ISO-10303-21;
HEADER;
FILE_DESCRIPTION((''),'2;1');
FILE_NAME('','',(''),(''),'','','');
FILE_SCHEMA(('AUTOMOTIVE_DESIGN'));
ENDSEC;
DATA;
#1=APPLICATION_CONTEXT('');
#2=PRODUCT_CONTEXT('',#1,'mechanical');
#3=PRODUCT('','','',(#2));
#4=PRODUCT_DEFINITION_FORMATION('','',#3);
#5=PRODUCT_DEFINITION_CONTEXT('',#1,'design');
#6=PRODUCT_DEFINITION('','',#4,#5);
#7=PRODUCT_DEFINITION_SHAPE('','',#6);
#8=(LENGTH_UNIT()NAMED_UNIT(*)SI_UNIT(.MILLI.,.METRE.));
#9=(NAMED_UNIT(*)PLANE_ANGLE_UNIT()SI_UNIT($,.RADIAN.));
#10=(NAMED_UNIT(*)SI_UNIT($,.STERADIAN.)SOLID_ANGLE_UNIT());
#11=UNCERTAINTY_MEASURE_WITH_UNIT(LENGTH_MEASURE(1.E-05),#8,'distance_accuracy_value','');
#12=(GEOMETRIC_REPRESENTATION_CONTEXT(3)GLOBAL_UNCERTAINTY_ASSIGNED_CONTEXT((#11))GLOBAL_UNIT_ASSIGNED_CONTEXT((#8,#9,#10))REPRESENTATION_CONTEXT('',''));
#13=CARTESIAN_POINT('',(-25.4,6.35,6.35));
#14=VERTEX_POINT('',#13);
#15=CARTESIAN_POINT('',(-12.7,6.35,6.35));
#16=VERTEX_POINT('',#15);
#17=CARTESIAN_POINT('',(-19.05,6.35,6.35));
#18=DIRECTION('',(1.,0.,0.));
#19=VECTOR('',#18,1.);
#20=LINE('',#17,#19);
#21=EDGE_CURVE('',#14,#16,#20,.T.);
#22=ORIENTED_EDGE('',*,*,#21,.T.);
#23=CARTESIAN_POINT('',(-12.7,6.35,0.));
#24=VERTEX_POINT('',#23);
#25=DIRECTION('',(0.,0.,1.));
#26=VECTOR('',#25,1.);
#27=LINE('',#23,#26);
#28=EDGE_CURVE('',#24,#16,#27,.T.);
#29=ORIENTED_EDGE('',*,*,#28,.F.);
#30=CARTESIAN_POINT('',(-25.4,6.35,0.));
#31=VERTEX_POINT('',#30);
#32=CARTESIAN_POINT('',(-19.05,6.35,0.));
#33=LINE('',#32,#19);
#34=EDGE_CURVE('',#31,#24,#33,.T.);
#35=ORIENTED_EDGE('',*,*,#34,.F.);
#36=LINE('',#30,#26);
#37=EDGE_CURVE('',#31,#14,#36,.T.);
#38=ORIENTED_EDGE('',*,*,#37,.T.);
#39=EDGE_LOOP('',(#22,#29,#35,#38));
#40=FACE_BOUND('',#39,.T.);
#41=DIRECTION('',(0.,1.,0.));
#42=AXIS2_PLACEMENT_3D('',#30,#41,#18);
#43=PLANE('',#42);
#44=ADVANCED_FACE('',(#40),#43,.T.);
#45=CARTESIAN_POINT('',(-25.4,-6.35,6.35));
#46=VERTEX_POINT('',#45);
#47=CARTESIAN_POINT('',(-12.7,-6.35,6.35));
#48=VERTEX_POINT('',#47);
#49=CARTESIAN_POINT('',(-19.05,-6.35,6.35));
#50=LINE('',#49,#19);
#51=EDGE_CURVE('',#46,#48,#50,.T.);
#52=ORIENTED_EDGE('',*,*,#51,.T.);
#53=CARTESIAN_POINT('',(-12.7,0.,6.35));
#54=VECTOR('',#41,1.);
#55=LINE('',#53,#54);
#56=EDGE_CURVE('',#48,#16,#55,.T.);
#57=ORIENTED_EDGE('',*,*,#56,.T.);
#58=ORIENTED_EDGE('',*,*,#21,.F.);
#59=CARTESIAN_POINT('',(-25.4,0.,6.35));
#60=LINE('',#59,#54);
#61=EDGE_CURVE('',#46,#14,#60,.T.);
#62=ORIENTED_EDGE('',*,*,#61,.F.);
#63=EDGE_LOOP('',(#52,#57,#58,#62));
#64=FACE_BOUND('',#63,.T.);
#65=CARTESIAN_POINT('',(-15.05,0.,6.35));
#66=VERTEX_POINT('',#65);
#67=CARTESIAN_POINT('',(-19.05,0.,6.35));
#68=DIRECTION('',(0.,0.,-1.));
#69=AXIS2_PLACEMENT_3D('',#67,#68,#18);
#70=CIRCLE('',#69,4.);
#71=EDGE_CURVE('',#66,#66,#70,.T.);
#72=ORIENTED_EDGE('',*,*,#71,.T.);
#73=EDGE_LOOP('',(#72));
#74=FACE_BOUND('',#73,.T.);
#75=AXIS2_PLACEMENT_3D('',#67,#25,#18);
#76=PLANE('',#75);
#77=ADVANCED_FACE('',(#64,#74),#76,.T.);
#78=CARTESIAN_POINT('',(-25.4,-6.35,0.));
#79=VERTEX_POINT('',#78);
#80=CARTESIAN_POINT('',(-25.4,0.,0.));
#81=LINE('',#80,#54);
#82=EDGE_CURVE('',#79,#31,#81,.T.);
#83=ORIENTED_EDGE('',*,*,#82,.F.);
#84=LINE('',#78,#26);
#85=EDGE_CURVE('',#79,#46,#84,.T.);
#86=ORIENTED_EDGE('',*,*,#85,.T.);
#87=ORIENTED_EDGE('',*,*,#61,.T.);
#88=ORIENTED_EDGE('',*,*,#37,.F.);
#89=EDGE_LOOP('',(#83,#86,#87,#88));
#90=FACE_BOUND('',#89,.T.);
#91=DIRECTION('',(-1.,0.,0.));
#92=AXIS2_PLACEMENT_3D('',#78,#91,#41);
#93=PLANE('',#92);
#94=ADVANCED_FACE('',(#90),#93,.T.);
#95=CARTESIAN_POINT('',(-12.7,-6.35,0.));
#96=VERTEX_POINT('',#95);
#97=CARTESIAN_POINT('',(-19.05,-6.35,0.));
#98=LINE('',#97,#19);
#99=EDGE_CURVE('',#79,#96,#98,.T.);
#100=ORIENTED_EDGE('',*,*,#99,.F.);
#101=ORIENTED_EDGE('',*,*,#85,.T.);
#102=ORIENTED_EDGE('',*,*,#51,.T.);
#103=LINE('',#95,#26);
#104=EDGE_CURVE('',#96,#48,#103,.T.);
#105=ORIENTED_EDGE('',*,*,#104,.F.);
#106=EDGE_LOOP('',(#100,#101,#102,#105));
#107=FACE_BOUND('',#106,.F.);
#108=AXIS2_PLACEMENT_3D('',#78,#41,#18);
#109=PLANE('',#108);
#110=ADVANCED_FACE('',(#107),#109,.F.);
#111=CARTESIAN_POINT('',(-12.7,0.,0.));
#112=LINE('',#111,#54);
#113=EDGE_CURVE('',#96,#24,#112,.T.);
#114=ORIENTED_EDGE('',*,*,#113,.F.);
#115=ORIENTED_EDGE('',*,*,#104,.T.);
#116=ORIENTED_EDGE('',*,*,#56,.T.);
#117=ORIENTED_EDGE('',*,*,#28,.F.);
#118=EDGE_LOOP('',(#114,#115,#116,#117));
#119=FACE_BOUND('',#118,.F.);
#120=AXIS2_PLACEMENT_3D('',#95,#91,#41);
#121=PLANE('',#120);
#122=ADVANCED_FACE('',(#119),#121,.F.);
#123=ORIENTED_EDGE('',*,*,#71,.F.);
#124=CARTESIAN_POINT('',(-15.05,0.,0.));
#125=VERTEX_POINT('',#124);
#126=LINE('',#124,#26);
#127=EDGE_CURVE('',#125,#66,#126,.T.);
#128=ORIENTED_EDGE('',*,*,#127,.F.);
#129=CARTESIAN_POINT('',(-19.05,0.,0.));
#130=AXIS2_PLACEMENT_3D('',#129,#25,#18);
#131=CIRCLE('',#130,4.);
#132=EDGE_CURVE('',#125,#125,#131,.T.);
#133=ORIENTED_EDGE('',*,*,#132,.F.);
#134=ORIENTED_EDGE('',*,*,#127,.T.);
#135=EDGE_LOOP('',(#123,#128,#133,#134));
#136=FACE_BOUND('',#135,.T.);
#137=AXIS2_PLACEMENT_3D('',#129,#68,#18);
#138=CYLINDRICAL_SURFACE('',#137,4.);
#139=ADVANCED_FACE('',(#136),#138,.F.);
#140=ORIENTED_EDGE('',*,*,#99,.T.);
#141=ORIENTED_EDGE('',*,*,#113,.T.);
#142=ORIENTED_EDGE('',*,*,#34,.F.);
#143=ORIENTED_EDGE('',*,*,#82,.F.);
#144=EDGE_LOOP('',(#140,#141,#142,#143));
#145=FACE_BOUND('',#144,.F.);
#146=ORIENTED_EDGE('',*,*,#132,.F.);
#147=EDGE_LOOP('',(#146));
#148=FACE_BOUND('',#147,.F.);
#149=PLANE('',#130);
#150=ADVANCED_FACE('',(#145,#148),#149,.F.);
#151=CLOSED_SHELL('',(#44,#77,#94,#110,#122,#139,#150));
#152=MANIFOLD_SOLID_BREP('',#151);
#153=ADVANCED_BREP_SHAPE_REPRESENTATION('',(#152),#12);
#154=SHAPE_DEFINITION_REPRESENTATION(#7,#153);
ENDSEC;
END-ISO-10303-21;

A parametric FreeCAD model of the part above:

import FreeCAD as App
import Part
import Sketcher
from FreeCAD import Vector


def add_polygon(sketch, points):
    """Adds a closed chain of lines whose ends are joined by coincident constraints."""
    first, n = sketch.GeometryCount, len(points)
    for a, b in zip(points, points[1:] + points[:1]):
        sketch.addGeometry(Part.LineSegment(App.Vector(*a, 0), App.Vector(*b, 0)), False)
    for i in range(n):
        sketch.addConstraint(Sketcher.Constraint("Coincident", first + i, 2, first + (i + 1) % n, 1))

doc = App.newDocument("Part")
body = doc.addObject("PartDesign::Body", "Body")

# Sketch on XY plane
sketch1 = doc.addObject("Sketcher::SketchObject", "Sketch")
body.addObject(sketch1)
sketch1.AttachmentSupport = (doc.XY_Plane, [""])
sketch1.MapMode = "FlatFace"
sketch1.addGeometry(Part.Circle(Vector(6.3, 6.3, 0), Vector(0, 0, 1), 4), False)
sketch1.addConstraint([
    Sketcher.Constraint("Diameter", 0, 8.0),
    Sketcher.Constraint("DistanceX", -1, 1, 0, 3, 6.35),
    Sketcher.Constraint("DistanceY", -1, 1, 0, 3, 6.35),
])
pad1 = doc.addObject("PartDesign::Pad", "Pad")
body.addObject(pad1)
pad1.Profile = sketch1
pad1.Length = 10
body2 = doc.addObject("PartDesign::Body", "Body001")

# Sketch on XY plane
sketch2 = doc.addObject("Sketcher::SketchObject", "Sketch001")
body2.addObject(sketch2)
sketch2.AttachmentSupport = (doc.getObject("XY_Plane001"), [""])
sketch2.MapMode = "FlatFace"
add_polygon(sketch2, [(0, 13), (0, 0), (13, 0), (13, 13)])  # lines 0-3
sketch2.addConstraint([
    Sketcher.Constraint("Vertical", 0),
    Sketcher.Constraint("Horizontal", 1),
    Sketcher.Constraint("Vertical", 2),
    Sketcher.Constraint("Horizontal", 3),
    Sketcher.Constraint("Coincident", 0, 2, -1, 1),
    Sketcher.Constraint("Equal", 3, 0),
    Sketcher.Constraint("DistanceX", 1, 1, 1, 2, 12.7),
])
pad2 = doc.addObject("PartDesign::Pad", "Pad001")
body2.addObject(pad2)
pad2.Profile = sketch2
pad2.Length = 6.35
doc.recompute()

boolean = doc.addObject("PartDesign::Boolean", "Boolean")
body2.addObject(boolean)
boolean.Type = "Cut"
boolean.addObjects([body])
body3 = doc.addObject("PartDesign::Body", "Body002")
doc.recompute()

body2.Placement = App.Placement(Vector(-25.4, -6.35, 0), App.Rotation(Vector(0, 0, 1), 0))
boolean2 = doc.addObject("PartDesign::Boolean", "Boolean001")
body3.addObject(boolean2)
boolean2.Type = "Fuse"
boolean2.addObjects([body2])

doc.recompute()
